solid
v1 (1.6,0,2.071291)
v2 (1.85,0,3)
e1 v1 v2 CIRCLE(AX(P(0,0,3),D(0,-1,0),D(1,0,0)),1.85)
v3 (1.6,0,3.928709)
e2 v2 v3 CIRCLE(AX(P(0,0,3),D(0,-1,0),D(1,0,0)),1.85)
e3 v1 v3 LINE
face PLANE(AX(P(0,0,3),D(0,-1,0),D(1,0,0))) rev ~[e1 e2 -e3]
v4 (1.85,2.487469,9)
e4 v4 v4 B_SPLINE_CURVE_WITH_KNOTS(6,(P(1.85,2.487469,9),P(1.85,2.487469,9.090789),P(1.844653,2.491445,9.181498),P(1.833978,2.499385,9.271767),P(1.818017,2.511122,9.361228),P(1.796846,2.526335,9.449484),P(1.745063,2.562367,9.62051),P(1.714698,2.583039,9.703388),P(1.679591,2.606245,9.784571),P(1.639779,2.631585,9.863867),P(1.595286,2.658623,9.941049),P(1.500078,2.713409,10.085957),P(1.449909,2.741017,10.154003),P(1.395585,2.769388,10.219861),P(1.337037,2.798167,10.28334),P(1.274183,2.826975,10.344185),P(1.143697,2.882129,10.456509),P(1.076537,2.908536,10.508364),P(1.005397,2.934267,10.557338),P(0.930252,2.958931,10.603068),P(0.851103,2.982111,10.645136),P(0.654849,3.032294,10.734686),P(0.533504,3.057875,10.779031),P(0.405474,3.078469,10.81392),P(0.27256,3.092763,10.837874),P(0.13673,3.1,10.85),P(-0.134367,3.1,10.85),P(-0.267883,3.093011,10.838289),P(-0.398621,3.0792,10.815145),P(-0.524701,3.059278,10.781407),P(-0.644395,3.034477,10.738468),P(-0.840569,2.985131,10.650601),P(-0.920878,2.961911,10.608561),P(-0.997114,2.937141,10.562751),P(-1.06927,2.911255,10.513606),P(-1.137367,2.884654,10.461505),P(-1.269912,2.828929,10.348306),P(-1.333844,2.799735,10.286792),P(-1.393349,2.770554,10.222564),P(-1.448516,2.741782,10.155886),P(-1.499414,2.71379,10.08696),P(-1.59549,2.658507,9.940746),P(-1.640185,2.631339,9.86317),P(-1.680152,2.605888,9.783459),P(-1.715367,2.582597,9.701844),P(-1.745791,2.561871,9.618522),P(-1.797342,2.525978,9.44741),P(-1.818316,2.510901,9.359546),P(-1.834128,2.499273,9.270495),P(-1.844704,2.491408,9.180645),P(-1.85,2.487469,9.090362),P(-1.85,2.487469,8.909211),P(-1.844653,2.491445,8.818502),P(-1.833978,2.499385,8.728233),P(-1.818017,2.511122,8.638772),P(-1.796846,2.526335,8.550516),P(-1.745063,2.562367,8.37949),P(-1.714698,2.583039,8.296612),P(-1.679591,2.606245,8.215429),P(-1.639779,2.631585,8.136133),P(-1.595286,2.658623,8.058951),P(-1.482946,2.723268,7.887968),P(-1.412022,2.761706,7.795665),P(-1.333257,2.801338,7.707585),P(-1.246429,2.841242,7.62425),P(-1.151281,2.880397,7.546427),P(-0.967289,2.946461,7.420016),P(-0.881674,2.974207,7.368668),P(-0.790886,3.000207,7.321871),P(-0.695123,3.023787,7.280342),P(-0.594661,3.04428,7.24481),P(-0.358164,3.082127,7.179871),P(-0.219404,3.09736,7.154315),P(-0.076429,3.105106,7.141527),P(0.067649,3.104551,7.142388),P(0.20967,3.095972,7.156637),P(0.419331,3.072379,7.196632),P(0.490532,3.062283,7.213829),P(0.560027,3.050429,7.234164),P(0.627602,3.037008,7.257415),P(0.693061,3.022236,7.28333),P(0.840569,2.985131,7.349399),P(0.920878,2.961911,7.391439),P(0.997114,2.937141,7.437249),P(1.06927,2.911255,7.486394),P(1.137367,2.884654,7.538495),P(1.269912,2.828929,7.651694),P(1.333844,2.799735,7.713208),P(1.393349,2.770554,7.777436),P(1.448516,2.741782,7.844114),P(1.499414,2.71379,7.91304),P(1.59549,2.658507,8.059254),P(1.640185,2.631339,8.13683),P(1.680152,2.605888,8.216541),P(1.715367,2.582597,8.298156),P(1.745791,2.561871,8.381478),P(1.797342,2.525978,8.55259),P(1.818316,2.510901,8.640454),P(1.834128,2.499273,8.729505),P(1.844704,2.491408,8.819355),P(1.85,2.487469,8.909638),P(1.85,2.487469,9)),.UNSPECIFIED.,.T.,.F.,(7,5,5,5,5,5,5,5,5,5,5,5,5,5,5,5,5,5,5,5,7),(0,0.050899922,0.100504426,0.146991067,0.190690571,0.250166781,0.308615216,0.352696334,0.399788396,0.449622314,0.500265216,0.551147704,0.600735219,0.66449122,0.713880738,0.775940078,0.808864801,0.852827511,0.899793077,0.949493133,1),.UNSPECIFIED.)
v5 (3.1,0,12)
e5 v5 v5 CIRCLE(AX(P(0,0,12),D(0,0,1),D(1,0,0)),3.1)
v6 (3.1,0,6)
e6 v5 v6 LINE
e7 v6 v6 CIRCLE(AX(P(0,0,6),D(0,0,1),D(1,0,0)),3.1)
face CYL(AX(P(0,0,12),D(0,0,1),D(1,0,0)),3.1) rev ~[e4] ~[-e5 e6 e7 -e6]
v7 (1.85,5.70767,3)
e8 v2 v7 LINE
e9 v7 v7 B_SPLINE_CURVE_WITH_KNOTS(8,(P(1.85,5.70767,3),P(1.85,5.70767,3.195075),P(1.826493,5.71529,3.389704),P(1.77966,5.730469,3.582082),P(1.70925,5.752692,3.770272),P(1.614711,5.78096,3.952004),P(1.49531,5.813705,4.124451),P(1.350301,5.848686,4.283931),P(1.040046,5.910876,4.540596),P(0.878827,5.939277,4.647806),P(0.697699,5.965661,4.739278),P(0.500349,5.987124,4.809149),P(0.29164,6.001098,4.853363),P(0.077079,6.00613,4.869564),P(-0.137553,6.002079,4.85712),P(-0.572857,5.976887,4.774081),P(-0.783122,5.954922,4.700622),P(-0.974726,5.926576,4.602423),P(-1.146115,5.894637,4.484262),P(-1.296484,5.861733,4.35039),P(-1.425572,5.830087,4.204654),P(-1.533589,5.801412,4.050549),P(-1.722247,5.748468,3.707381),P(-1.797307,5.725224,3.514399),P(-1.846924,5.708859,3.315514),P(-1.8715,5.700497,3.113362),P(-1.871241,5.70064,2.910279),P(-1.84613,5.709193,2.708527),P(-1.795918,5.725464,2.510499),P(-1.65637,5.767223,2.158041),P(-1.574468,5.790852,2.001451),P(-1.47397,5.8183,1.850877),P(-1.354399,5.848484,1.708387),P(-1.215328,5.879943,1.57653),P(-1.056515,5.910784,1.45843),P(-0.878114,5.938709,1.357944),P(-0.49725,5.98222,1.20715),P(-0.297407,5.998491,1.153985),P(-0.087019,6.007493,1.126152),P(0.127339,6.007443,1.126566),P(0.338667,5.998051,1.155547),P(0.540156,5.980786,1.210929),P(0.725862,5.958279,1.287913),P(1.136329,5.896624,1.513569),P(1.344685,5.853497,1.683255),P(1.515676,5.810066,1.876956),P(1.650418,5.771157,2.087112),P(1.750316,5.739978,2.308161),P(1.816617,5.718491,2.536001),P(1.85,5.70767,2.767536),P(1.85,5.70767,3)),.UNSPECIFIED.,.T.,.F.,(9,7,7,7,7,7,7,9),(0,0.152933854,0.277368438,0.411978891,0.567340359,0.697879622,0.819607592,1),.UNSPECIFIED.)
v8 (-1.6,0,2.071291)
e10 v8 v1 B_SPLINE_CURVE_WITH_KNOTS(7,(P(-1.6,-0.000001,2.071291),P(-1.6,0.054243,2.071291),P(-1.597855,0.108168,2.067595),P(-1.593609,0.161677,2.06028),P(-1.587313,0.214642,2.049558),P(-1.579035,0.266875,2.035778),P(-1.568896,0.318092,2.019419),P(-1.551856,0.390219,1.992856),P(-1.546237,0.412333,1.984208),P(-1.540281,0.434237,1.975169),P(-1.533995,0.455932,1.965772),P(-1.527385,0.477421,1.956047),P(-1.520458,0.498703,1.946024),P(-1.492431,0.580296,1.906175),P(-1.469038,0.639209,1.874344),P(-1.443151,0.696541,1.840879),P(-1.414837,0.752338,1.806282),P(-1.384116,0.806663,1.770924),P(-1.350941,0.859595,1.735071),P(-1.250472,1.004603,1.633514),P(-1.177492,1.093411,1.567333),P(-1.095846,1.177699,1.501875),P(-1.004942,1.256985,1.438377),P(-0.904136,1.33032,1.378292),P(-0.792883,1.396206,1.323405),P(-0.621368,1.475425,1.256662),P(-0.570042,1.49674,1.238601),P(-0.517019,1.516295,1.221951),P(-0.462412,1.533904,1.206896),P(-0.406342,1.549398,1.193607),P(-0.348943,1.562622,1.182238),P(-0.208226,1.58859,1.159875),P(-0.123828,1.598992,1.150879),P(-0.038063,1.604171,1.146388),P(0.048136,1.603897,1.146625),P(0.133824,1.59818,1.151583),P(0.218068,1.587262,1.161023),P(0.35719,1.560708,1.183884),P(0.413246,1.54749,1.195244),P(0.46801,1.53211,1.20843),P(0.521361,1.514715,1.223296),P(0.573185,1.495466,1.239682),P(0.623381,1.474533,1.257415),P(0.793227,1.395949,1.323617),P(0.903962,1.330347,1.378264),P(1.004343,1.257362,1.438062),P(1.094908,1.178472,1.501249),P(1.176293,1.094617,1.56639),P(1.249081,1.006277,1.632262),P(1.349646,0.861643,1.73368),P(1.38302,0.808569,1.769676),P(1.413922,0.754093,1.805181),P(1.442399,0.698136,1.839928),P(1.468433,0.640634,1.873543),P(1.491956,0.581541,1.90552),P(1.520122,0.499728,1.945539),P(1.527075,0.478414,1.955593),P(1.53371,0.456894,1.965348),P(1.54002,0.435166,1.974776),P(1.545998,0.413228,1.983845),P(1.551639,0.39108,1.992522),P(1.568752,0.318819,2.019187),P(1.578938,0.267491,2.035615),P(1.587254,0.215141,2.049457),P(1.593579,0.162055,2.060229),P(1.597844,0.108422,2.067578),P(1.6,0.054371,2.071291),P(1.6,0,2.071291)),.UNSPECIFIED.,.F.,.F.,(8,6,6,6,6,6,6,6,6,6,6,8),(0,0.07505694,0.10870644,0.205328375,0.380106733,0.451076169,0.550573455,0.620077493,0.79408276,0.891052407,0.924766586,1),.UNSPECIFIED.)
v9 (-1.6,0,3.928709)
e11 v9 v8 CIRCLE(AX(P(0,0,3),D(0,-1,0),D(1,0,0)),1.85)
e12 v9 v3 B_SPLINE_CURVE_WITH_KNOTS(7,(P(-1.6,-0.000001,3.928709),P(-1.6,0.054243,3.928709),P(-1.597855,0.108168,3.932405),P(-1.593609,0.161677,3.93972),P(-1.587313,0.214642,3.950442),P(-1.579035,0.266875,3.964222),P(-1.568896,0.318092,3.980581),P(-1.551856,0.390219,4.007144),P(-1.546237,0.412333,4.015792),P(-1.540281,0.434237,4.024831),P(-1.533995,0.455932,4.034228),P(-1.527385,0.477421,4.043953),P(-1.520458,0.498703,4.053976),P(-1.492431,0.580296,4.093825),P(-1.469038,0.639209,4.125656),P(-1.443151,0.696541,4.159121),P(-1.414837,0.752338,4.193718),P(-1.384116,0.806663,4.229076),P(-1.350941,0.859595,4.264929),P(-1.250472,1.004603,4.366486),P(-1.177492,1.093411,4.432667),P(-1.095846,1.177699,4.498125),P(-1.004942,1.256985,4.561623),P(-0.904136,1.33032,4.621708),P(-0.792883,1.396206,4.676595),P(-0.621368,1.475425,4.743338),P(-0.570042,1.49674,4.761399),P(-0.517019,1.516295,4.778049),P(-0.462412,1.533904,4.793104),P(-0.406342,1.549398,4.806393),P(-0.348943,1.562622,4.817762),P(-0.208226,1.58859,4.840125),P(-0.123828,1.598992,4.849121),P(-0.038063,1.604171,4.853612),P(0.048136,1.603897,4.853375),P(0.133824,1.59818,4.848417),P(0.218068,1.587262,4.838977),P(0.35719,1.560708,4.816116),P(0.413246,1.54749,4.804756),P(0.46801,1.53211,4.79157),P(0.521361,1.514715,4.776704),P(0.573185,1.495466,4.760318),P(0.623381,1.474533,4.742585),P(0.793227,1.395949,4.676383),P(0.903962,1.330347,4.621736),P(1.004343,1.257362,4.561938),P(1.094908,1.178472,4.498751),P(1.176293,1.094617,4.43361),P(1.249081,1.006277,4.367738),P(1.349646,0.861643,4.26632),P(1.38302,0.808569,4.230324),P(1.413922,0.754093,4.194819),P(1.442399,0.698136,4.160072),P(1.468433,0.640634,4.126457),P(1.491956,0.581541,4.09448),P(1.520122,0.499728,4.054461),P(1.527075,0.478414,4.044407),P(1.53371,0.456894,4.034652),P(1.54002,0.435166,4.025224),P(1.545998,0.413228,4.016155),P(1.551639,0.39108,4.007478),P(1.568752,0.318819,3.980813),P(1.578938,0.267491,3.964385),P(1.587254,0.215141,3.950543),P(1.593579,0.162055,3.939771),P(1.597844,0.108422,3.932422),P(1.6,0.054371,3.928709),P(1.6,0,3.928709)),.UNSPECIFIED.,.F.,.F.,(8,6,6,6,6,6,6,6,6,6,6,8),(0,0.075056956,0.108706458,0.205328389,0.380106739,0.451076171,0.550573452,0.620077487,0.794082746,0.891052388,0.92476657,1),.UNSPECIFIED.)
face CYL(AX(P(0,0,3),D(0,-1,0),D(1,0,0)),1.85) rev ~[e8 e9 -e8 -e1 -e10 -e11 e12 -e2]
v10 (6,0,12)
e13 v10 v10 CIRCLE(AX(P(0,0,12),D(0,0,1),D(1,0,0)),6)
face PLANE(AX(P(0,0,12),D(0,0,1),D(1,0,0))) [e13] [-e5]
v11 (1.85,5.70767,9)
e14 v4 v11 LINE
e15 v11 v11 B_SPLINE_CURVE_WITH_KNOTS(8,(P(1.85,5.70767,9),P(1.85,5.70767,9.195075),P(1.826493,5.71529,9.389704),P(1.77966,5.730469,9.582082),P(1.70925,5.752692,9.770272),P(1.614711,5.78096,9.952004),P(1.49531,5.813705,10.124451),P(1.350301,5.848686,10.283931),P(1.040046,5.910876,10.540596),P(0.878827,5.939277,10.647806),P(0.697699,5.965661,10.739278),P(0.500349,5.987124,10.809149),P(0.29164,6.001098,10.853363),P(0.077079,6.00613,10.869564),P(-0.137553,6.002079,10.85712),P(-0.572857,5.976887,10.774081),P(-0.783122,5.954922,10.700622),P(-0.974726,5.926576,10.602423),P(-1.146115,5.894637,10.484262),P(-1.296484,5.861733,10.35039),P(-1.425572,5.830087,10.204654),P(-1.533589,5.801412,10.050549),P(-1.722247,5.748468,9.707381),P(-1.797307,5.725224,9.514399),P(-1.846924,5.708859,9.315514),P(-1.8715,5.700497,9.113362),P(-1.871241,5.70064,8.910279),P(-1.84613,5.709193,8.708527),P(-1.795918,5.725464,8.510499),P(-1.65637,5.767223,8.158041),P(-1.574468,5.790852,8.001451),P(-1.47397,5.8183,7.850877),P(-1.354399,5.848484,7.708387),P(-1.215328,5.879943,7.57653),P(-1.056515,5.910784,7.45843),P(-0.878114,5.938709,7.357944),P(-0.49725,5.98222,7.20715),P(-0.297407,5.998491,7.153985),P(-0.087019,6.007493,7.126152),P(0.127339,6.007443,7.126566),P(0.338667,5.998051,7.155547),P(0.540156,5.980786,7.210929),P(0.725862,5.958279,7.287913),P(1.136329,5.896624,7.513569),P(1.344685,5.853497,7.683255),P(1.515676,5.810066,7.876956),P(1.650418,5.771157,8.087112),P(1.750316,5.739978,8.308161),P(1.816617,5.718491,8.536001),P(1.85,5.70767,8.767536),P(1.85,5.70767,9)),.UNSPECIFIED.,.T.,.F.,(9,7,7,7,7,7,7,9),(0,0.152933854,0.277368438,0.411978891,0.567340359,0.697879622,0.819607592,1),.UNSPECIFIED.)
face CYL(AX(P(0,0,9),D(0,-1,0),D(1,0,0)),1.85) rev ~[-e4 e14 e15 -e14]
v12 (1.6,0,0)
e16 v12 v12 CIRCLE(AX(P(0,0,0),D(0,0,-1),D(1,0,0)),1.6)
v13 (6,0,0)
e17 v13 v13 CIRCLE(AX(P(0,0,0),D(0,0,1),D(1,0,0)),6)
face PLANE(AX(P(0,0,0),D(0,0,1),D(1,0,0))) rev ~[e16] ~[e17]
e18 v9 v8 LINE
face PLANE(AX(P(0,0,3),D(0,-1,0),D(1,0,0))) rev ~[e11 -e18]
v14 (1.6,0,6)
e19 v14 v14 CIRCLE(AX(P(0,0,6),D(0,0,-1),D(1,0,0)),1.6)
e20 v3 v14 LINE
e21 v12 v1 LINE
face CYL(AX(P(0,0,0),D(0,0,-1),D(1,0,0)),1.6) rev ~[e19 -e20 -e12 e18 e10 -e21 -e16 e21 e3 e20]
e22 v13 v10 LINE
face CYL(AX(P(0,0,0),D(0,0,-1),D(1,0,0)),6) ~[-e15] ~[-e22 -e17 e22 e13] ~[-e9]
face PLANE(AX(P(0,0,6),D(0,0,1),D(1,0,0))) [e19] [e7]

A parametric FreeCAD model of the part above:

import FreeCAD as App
import Part
import Sketcher

V = App.Vector
Q = App.Units.Quantity

doc = App.newDocument("Part")
body = doc.addObject("PartDesign::Body", "Body")

# Sketch on XY plane
sketch1 = body.newObject("Sketcher::SketchObject", "Sketch")
sketch1.AttachmentSupport = (doc.getObject("XY_Plane"), [""])
sketch1.MapMode = "FlatFace"
sketch1.addGeometry(Part.Circle(V(0, 0, 0), V(0, 0, 1), 6), False)
sketch1.addConstraint([
    Sketcher.Constraint("Coincident", 0, 3, -1, 1),
    Sketcher.Constraint("Diameter", 0, Q("12 mm")),
])
pad1 = body.newObject("PartDesign::Pad", "Pad")
pad1.Profile = sketch1
pad1.Length = 12

# Sketch on XY plane
sketch2 = body.newObject("Sketcher::SketchObject", "Sketch001")
sketch2.AttachmentSupport = (doc.getObject("XY_Plane"), [""])
sketch2.MapMode = "FlatFace"
sketch2.AttachmentOffset = App.Placement(V(0, 0, 12), App.Rotation())
sketch2.addGeometry(Part.Circle(V(0, 0, 0), V(0, 0, 1), 3.1), False)
sketch2.addConstraint([
    Sketcher.Constraint("Coincident", 0, 3, -1, 1),
    Sketcher.Constraint("Diameter", 0, Q("6.2 mm")),
])
pocket1 = body.newObject("PartDesign::Pocket", "Pocket")
pocket1.Profile = sketch2
pocket1.Length = 6

# Sketch on XY plane
sketch3 = body.newObject("Sketcher::SketchObject", "Sketch002")
sketch3.AttachmentSupport = (doc.getObject("XY_Plane"), [""])
sketch3.MapMode = "FlatFace"
sketch3.addGeometry(Part.Circle(V(0, 0, 0), V(0, 0, 1), 1.6), False)
sketch3.addConstraint([
    Sketcher.Constraint("Coincident", 0, 3, -1, 1),
    Sketcher.Constraint("Diameter", 0, Q("3.2 mm")),
])
pocket2 = body.newObject("PartDesign::Pocket", "Pocket001")
pocket2.Profile = sketch3
pocket2.Length = 6
pocket2.Reversed = True

# Sketch on XZ plane
sketch4 = body.newObject("Sketcher::SketchObject", "Sketch003")
sketch4.AttachmentSupport = (doc.getObject("XZ_Plane"), [""])
sketch4.MapMode = "FlatFace"
sketch4.addGeometry([
    Part.Circle(V(0, 9, 0), V(0, 0, 1), 1.9),
    Part.Circle(V(0, 3, 0), V(0, 0, 1), 1.9),
], False)
sketch4.addConstraint([
    Sketcher.Constraint("Equal", 0, 1),
    Sketcher.Constraint("PointOnObject", 0, 3, -2),
    Sketcher.Constraint("PointOnObject", 1, 3, -2),
    Sketcher.Constraint("Diameter", 0, Q("3.7 mm")),
    Sketcher.Constraint("DistanceY", -1, 1, 0, 3, Q("9 mm")),
    Sketcher.Constraint("DistanceY", -1, 1, 1, 3, Q("3 mm")),
])
pocket3 = body.newObject("PartDesign::Pocket", "Pocket002")
pocket3.Profile = sketch4
pocket3.Type = "ThroughAll"

doc.recompute()
